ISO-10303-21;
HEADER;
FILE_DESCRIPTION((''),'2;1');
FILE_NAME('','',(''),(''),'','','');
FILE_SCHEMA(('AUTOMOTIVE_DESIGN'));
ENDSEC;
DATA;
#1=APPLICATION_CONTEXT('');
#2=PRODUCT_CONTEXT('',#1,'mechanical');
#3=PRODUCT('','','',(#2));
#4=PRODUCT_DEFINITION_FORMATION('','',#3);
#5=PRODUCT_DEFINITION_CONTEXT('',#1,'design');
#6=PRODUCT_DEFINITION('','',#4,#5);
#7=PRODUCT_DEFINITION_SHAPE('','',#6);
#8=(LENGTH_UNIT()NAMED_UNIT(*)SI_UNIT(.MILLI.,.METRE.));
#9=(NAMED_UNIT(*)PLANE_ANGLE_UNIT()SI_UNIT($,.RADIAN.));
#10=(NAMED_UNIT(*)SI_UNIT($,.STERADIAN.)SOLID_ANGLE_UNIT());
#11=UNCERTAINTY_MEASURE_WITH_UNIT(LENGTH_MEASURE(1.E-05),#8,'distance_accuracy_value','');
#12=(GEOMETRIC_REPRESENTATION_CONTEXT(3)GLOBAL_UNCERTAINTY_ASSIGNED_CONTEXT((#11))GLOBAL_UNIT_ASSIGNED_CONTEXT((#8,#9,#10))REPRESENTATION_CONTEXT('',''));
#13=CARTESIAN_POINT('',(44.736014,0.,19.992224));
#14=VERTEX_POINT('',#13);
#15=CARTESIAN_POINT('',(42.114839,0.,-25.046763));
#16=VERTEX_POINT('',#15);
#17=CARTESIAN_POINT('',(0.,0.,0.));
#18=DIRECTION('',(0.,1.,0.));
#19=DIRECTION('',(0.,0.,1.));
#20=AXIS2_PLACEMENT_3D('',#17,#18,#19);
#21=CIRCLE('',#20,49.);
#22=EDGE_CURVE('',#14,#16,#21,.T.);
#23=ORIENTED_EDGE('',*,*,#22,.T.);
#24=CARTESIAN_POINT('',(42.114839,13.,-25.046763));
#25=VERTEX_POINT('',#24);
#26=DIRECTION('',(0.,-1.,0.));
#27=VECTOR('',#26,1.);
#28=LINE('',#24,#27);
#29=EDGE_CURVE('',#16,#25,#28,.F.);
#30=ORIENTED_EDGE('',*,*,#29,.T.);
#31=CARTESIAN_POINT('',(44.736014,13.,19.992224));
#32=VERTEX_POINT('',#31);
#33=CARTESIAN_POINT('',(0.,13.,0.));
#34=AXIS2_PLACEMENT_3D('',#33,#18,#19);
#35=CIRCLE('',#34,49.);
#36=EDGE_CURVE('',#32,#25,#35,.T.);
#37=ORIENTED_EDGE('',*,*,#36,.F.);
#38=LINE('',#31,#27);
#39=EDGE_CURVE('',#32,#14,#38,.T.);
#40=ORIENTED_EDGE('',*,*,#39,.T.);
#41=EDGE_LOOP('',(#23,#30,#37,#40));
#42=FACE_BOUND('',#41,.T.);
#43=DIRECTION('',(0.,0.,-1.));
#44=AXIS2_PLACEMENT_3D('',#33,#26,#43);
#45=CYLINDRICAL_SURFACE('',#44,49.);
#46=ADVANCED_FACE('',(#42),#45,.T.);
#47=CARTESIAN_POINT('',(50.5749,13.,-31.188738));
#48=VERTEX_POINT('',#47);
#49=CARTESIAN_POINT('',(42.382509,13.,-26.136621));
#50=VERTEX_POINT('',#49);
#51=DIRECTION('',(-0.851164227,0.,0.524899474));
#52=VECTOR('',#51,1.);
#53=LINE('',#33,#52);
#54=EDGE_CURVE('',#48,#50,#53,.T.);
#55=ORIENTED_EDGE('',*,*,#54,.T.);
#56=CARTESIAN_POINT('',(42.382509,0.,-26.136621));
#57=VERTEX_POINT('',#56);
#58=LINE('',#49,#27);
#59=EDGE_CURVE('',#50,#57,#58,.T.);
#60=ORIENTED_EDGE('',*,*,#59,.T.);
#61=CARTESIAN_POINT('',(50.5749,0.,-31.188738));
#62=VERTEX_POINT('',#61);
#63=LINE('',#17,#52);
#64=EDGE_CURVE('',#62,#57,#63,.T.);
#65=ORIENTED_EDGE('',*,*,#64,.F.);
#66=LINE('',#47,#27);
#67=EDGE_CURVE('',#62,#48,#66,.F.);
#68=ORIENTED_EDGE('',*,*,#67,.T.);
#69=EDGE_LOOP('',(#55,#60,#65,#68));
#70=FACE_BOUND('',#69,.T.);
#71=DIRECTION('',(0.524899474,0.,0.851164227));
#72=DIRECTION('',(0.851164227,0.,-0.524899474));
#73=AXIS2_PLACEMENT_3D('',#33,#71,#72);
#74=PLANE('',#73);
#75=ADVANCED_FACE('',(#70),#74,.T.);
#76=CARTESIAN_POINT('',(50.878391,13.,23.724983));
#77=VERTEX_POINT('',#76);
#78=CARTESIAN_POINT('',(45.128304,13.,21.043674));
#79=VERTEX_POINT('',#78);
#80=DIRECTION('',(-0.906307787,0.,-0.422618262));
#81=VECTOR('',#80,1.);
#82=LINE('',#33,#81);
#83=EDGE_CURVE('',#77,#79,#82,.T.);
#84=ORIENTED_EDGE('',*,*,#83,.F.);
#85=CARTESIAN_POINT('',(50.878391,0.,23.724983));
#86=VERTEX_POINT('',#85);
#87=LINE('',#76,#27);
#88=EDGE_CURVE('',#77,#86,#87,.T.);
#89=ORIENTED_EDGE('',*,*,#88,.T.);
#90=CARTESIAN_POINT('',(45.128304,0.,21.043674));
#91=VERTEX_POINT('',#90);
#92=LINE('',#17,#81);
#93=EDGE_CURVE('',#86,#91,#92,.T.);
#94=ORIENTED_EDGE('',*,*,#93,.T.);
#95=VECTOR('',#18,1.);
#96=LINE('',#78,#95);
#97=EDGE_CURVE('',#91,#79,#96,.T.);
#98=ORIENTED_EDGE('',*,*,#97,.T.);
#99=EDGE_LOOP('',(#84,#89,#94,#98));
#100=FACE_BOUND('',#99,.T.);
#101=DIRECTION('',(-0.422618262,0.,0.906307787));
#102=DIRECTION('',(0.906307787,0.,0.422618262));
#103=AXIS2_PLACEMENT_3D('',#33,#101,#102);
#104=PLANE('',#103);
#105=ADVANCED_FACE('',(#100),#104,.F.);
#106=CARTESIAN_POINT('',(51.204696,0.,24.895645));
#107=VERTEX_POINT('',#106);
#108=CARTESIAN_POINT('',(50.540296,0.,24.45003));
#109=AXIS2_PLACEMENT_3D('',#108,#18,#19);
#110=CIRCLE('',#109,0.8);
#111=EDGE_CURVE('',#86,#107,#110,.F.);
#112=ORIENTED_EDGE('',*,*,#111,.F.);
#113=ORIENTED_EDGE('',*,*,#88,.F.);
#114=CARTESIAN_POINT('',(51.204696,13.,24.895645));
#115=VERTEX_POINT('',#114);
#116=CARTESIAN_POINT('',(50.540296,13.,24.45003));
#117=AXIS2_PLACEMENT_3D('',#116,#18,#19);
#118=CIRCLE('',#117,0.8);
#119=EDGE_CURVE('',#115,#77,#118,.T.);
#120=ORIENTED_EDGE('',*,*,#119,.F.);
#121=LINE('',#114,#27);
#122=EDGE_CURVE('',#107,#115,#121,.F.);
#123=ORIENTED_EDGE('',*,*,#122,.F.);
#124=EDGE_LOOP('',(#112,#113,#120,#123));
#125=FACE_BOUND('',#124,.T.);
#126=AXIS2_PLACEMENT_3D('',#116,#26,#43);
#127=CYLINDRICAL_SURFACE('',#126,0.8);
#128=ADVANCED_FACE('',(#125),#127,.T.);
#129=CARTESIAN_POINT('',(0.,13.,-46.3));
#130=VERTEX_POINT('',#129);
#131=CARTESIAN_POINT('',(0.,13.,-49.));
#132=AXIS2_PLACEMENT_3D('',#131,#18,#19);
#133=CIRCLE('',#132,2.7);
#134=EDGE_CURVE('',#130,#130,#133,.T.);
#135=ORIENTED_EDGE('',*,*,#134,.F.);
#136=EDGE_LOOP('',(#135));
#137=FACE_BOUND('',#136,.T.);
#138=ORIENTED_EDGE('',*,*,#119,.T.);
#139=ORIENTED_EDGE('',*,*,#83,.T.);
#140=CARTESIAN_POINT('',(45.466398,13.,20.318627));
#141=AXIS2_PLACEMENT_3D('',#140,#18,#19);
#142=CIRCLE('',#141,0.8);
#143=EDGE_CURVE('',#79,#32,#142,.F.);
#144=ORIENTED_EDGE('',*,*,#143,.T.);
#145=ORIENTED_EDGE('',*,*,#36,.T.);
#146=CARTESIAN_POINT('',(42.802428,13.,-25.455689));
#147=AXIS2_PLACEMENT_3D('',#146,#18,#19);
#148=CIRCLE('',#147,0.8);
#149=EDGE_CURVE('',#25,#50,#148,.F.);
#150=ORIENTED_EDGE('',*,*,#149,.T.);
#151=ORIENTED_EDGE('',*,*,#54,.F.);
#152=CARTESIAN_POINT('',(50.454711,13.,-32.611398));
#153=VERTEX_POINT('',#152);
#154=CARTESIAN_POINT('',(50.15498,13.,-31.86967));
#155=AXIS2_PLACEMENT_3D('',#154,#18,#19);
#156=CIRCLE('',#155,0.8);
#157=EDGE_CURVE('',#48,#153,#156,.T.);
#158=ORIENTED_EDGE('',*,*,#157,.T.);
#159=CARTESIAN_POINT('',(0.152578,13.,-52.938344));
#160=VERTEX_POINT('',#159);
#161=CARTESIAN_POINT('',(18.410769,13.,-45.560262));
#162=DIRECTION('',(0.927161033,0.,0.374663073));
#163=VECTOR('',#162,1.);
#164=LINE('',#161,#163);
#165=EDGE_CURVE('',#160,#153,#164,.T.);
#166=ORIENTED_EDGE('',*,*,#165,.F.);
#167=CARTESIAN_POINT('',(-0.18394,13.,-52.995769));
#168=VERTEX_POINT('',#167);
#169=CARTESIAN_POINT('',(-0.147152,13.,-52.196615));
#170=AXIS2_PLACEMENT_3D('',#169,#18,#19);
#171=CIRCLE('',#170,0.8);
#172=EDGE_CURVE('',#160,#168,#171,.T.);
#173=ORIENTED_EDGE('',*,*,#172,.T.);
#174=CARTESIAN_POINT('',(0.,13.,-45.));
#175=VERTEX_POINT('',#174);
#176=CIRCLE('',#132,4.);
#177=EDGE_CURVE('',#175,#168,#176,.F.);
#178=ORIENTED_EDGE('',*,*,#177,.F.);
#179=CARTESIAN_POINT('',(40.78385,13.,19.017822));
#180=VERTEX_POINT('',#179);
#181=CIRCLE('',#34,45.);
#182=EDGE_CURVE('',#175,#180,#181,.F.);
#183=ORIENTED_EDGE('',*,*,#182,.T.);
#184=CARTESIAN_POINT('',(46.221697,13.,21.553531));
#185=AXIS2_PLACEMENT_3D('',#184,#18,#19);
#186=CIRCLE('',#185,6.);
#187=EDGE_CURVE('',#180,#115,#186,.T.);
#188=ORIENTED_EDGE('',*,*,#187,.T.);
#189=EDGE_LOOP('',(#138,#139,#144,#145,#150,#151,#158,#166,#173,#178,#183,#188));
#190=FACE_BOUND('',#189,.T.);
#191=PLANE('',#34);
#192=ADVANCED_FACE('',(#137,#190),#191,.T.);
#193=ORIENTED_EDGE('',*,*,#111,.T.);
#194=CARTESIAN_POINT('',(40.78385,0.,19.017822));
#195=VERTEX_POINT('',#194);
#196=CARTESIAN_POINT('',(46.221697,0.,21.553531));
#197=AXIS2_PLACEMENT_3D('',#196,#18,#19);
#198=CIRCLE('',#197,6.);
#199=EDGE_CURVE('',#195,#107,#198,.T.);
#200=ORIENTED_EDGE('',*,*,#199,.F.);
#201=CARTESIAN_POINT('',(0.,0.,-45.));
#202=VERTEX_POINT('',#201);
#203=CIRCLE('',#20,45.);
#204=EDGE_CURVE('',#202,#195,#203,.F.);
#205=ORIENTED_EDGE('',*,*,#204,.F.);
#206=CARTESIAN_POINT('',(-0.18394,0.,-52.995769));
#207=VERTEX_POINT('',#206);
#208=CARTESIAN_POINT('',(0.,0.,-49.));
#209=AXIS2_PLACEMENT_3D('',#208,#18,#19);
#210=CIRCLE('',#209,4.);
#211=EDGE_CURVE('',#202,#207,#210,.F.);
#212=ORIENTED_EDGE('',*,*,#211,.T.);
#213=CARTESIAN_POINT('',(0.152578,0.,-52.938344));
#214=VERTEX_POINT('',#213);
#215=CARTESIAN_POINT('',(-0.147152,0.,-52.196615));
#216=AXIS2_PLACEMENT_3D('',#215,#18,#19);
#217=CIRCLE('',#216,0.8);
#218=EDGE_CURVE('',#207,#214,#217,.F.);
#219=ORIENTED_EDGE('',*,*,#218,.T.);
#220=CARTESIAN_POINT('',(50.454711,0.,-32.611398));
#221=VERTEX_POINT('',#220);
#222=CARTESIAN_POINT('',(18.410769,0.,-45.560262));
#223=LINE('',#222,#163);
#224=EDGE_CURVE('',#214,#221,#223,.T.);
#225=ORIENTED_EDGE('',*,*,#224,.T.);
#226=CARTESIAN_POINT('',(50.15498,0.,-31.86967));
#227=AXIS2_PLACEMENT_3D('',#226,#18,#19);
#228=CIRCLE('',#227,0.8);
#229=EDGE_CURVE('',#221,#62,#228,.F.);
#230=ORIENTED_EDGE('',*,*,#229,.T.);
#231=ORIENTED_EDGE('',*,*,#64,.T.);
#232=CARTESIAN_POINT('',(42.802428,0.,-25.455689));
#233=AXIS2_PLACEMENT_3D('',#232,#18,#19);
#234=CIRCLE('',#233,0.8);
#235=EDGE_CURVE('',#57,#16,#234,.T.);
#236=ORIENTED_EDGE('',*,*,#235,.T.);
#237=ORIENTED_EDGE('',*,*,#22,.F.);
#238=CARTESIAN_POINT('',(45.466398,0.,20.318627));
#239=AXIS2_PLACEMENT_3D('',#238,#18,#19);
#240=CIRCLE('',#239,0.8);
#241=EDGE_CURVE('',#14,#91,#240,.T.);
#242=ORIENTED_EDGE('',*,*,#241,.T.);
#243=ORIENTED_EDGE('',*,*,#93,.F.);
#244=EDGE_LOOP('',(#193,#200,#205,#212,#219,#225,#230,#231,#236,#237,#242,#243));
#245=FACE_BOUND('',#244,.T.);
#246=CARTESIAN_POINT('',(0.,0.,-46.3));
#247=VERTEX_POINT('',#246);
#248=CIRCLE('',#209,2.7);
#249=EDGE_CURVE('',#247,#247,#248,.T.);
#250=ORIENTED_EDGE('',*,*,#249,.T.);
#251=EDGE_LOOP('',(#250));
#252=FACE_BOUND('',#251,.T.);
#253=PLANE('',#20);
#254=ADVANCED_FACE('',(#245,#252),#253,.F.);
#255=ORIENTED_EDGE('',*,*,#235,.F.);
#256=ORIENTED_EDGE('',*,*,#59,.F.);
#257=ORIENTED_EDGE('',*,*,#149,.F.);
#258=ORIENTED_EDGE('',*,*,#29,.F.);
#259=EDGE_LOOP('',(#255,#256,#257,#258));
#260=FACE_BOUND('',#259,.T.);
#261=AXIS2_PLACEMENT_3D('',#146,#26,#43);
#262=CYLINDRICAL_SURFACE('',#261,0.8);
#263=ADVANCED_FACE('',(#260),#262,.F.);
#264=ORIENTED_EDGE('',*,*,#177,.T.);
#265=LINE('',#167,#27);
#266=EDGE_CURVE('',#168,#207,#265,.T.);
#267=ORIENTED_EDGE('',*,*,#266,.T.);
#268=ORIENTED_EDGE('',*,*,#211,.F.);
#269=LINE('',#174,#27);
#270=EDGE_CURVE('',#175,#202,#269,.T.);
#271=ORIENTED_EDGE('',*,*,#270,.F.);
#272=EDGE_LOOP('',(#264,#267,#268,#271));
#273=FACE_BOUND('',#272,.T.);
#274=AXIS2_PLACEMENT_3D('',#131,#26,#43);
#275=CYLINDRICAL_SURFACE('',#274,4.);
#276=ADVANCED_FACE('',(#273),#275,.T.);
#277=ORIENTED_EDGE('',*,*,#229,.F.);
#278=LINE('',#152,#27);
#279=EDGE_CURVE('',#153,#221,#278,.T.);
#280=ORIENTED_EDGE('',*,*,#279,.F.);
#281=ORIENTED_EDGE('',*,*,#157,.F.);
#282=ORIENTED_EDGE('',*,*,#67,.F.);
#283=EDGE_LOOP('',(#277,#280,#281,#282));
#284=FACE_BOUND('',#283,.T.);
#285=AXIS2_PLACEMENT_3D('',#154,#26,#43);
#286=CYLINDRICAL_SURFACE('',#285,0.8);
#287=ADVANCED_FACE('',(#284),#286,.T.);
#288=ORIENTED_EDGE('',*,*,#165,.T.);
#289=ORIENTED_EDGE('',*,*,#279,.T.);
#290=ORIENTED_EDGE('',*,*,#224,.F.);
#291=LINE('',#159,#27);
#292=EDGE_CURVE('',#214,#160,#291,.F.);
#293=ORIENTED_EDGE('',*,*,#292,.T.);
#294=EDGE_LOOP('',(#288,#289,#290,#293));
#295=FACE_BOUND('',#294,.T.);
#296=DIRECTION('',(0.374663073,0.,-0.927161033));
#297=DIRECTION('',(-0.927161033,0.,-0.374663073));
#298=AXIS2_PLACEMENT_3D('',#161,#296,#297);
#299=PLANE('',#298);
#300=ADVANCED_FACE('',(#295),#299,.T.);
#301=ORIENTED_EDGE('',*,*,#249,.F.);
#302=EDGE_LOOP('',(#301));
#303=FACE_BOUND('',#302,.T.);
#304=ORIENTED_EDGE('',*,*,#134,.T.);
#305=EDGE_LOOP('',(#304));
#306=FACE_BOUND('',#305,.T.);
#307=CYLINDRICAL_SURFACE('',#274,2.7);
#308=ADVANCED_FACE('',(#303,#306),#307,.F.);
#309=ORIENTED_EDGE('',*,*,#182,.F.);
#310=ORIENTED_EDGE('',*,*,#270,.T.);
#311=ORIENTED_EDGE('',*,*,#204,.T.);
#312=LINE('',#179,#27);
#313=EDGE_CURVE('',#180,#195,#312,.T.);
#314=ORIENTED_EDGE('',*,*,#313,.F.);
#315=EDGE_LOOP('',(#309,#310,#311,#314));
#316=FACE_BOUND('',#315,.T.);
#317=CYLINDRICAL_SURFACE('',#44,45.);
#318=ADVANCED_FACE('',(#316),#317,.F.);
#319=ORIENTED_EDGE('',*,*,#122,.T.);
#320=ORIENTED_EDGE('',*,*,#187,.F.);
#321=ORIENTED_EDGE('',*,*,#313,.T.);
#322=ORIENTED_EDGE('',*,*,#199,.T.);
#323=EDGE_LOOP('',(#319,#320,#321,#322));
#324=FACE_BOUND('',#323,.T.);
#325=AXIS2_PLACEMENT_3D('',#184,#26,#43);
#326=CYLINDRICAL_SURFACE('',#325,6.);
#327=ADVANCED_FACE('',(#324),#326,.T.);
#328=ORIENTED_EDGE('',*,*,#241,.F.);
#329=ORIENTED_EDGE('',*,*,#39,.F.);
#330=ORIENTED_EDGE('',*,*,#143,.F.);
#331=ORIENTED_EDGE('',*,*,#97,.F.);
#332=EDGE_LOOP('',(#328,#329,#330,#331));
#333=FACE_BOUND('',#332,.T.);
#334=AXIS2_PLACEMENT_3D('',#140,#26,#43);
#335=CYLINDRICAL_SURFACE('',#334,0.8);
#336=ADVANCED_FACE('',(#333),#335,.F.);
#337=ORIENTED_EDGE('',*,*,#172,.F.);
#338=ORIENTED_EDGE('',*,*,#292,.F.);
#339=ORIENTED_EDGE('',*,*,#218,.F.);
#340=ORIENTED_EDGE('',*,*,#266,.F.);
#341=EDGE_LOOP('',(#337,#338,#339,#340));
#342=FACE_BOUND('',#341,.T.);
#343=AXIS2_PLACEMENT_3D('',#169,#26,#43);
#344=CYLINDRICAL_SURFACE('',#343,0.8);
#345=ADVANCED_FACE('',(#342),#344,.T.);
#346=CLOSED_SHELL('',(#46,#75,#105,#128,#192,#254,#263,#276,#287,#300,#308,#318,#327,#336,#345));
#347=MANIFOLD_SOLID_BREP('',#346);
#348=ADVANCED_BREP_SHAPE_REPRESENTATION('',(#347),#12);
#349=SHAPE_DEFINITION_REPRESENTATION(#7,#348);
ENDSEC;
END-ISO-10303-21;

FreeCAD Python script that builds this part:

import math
import FreeCAD as App
import Part
import Sketcher
Q = App.Units.Quantity


def edges_at(feature, points):
    """Names of the edges that pass closest to the given points."""
    edges = feature.Shape.Edges
    near = lambda p: min(range(len(edges)), key=lambda i: edges[i].distToShape(Part.Vertex(*p))[0])
    return sorted({f"Edge{near(p) + 1}" for p in points})

doc = App.newDocument("Part")
body = doc.addObject("PartDesign::Body", "Body")

# Sketch on XZ plane
sketch1 = body.newObject("Sketcher::SketchObject", "Sketch")
sketch1.AttachmentSupport = (doc.getObject("XZ_Plane"), [""])
sketch1.MapMode = "FlatFace"
sketch1.addGeometry(Part.ArcOfCircle(Part.Circle(App.Vector(0, -49, 0), App.Vector(0, 0, 1), 4), math.radians(90), math.radians(270)), False)
sketch1.addGeometry(Part.ArcOfCircle(Part.Circle(App.Vector(0, 0, 0), App.Vector(0, 0, 1), 45), math.radians(-90), math.radians(25)), False)
sketch1.addGeometry(Part.ArcOfCircle(Part.Circle(App.Vector(46.22, 21.55, 0), App.Vector(0, 0, 1), 6), math.radians(25), math.radians(205)), False)
sketch1.addGeometry(Part.LineSegment(App.Vector(51.66, 24.09, 0), App.Vector(44.41, 20.71, 0)), False)
sketch1.addGeometry(Part.ArcOfCircle(Part.Circle(App.Vector(0, 0, 0), App.Vector(0, 0, 1), 49), math.radians(-32), math.radians(25)), False)
sketch1.addGeometry(Part.LineSegment(App.Vector(41.71, -25.72, 0), App.Vector(51.92, -32.02, 0)), False)
sketch1.addGeometry(Part.LineSegment(App.Vector(51.92, -32.02, 0), App.Vector(0, -53, 0)), False)
sketch1.addGeometry(Part.ArcOfCircle(Part.Circle(App.Vector(0, -49, 0), App.Vector(0, 0, 1), 2.7), math.radians(2), math.radians(270)), False)
sketch1.addGeometry(Part.ArcOfCircle(Part.Circle(App.Vector(0, -49, 0), App.Vector(0, 0, 1), 2.7), math.radians(-90), math.radians(0)), False)
sketch1.addGeometry(Part.ArcOfCircle(Part.Circle(App.Vector(0, -49, 0), App.Vector(0, 0, 1), 2.7), math.radians(0), math.radians(1.58)), False)
sketch1.addConstraint(Sketcher.Constraint("Tangent", 0, 1, 1, 1))
sketch1.addConstraint(Sketcher.Constraint("Tangent", 1, 2, 2, 2))
sketch1.addConstraint(Sketcher.Constraint("Coincident", 2, 1, 3, 1))
sketch1.addConstraint(Sketcher.Constraint("Coincident", 3, 2, 4, 2))
sketch1.addConstraint(Sketcher.Constraint("Coincident", 4, 1, 5, 1))
sketch1.addConstraint(Sketcher.Constraint("Coincident", 5, 2, 6, 1))
sketch1.addConstraint(Sketcher.Constraint("Coincident", 6, 2, 0, 2))
sketch1.addConstraint(Sketcher.Constraint("Tangent", 7, 2, 8, 1))
sketch1.addConstraint(Sketcher.Constraint("Tangent", 8, 2, 9, 1))
sketch1.addConstraint(Sketcher.Constraint("Tangent", 9, 2, 7, 1))
sketch1.addConstraint(Sketcher.Constraint("Coincident", 1, 3, -1, 1))
sketch1.addConstraint(Sketcher.Constraint("Coincident", 4, 3, -1, 1))
sketch1.addConstraint(Sketcher.Constraint("Coincident", 7, 3, 0, 3))
sketch1.addConstraint(Sketcher.Constraint("PointOnObject", 0, 3, -2))
sketch1.addConstraint(Sketcher.Constraint("PointOnObject", 6, 2, -2))
sketch1.addConstraint(Sketcher.Constraint("PointOnObject", 7, 2, -2))
sketch1.addConstraint(Sketcher.Constraint("Horizontal", 9, 3, 8, 2))
sketch1.addConstraint(Sketcher.Constraint("Radius", 0, 4.0))
sketch1.addConstraint(Sketcher.Constraint("Radius", 1, 45.0))
sketch1.addConstraint(Sketcher.Constraint("Radius", 2, 6.0))
sketch1.addConstraint(Sketcher.Constraint("Radius", 4, 49.0))
sketch1.addConstraint(Sketcher.Constraint("Radius", 7, 2.7))
sketch1.addConstraint(Sketcher.Constraint("Angle", 3, Q("-155 deg")))
sketch1.addConstraint(Sketcher.Constraint("Distance", 5, 12.0))
sketch1.addConstraint(Sketcher.Constraint("Distance", 6, 56.0))
sketch1.addConstraint(Sketcher.Constraint("DistanceY", 5, 2, 2, 3, 53.572399))
sketch1.addConstraint(Sketcher.Constraint("DistanceY", -1, 1, 2, 1, 24.089241))
sketch1.addConstraint(Sketcher.Constraint("DistanceY", 4, 1, 3, 2, 46.428369))
sketch1.addConstraint(Sketcher.Constraint("DistanceX", -1, 1, 9, 2, 2.698975))
pad1 = body.newObject("PartDesign::Pad", "Pad")
pad1.Profile = sketch1
pad1.Length = 13
pad1.Reversed = True
doc.recompute()

fillet = body.newObject("PartDesign::Fillet", "Fillet")
fillet.Base = (pad1, edges_at(pad1, [
    (0, 6.5, -53),
    (51.921, 6.5, -32.019),
    (41.707, 6.5, -25.72),
    (44.409, 6.5, 20.708),
    (51.66, 6.5, 24.089),
]))
fillet.Radius = 0.8

doc.recompute()
